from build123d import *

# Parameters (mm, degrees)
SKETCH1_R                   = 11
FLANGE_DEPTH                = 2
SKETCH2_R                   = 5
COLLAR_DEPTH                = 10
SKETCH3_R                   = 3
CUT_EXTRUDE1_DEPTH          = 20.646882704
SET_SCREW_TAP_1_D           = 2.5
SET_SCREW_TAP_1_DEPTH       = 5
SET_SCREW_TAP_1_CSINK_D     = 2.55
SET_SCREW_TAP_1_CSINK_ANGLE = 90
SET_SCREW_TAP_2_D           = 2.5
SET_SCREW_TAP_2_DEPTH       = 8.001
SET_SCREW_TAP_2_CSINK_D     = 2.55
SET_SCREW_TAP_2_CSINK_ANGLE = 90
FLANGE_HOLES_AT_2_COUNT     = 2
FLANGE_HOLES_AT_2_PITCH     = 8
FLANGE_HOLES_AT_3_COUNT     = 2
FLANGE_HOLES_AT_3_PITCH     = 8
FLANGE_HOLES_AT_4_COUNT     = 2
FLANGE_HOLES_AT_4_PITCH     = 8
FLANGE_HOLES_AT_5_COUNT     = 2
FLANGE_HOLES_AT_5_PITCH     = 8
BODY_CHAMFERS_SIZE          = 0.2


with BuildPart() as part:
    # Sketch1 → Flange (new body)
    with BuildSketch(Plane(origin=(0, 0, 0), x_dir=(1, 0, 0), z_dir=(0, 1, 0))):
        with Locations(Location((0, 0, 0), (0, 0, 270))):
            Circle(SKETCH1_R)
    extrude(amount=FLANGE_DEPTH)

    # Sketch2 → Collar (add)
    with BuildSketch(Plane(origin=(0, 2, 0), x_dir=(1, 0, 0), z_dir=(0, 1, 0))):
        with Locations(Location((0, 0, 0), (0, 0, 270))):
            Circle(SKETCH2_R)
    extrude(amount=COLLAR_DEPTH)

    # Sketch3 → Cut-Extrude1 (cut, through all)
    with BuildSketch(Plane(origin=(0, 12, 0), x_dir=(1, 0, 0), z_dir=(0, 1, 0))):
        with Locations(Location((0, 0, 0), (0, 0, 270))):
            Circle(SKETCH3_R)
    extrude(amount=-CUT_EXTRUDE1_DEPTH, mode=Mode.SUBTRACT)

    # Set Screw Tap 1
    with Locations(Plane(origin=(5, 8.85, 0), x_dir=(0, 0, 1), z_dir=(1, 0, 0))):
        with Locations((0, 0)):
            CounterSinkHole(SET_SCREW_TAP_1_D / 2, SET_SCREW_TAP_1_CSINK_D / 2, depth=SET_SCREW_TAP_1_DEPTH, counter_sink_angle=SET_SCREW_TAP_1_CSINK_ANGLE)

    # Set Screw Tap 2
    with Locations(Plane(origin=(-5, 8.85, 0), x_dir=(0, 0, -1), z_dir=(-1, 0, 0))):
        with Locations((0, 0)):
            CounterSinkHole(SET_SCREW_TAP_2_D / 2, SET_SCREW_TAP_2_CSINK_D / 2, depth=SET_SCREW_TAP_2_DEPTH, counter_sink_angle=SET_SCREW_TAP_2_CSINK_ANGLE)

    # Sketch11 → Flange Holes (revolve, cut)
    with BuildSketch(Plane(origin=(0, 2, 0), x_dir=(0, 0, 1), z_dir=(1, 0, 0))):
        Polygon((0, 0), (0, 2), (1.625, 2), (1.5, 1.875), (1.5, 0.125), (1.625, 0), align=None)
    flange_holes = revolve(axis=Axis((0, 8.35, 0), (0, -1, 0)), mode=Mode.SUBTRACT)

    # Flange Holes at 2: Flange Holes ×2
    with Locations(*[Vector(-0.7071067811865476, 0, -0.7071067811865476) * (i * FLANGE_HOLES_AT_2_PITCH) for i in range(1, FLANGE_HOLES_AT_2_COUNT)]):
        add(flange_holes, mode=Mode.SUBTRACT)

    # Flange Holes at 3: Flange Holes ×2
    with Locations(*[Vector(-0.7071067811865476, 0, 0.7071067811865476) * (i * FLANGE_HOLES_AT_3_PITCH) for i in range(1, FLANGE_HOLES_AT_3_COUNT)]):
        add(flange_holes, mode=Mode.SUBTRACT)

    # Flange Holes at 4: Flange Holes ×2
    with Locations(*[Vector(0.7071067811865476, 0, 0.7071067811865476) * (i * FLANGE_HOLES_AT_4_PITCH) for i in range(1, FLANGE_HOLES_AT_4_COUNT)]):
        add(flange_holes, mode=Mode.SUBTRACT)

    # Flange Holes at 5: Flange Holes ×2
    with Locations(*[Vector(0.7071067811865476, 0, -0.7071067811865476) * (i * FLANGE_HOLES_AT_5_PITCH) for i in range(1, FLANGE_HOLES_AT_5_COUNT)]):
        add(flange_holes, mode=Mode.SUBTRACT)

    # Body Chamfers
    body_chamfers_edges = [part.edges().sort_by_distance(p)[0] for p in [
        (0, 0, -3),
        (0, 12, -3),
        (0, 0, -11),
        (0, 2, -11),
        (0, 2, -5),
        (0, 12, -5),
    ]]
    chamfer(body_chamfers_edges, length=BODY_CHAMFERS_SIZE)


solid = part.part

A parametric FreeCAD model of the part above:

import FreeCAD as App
import Part
import Sketcher

V = App.Vector


def edges_at(feature, points):
    """Names of the edges that pass closest to the given points."""
    edges = feature.Shape.Edges
    near = lambda p: min(range(len(edges)), key=lambda i: edges[i].distToShape(Part.Vertex(*p))[0])
    return sorted({f"Edge{near(p) + 1}" for p in points})


def add_polygon(sketch, points):
    """Adds a closed chain of lines whose ends are joined by coincident constraints."""
    first, n = sketch.GeometryCount, len(points)
    for a, b in zip(points, points[1:] + points[:1]):
        sketch.addGeometry(Part.LineSegment(App.Vector(*a, 0), App.Vector(*b, 0)), False)
    for i in range(n):
        sketch.addConstraint(Sketcher.Constraint("Coincident", first + i, 2, first + (i + 1) % n, 1))

doc = App.newDocument("Part")
body = doc.addObject("PartDesign::Body", "Body")

# Sketch on XZ plane
sketch1 = body.newObject("Sketcher::SketchObject", "Sketch")
sketch1.AttachmentSupport = (doc.getObject("XZ_Plane"), [""])
sketch1.MapMode = "FlatFace"
sketch1.addGeometry(Part.Circle(V(0, 0, 0), V(0, 0, 1), 11), False)
sketch1.addConstraint([
    Sketcher.Constraint("Coincident", 0, 3, -1, 1),
    Sketcher.Constraint("Diameter", 0, 22.0),
])
pad1 = body.newObject("PartDesign::Pad", "Pad")
pad1.Profile = sketch1
pad1.Length = 2
pad1.Reversed = True

# Sketch on XZ plane
sketch2 = body.newObject("Sketcher::SketchObject", "Sketch001")
sketch2.AttachmentSupport = (doc.getObject("XZ_Plane"), [""])
sketch2.MapMode = "FlatFace"
sketch2.AttachmentOffset = App.Placement(V(0, 0, -2), App.Rotation())
sketch2.addGeometry(Part.Circle(V(0, 0, 0), V(0, 0, 1), 5), False)
sketch2.addConstraint([
    Sketcher.Constraint("Coincident", 0, 3, -1, 1),
    Sketcher.Constraint("Diameter", 0, 10.0),
])
pad2 = body.newObject("PartDesign::Pad", "Pad001")
pad2.Profile = sketch2
pad2.Length = 10
pad2.Reversed = True

# Sketch on XZ plane
sketch3 = body.newObject("Sketcher::SketchObject", "Sketch002")
sketch3.AttachmentSupport = (doc.getObject("XZ_Plane"), [""])
sketch3.MapMode = "FlatFace"
sketch3.AttachmentOffset = App.Placement(V(0, 0, -12), App.Rotation())
sketch3.addGeometry(Part.Circle(V(0, 0, 0), V(0, 0, 1), 3), False)
sketch3.addConstraint([
    Sketcher.Constraint("Coincident", 0, 3, -1, 1),
    Sketcher.Constraint("Diameter", 0, 6.0),
])
pocket1 = body.newObject("PartDesign::Pocket", "Pocket")
pocket1.Profile = sketch3
pocket1.Type = "ThroughAll"
pocket1.Reversed = True

# Sketch on YZ plane
sketch4 = body.newObject("Sketcher::SketchObject", "Sketch003")
sketch4.AttachmentSupport = (doc.getObject("YZ_Plane"), [""])
sketch4.MapMode = "FlatFace"
sketch4.AttachmentOffset = App.Placement(V(0, 0, 5), App.Rotation())
sketch4.addGeometry(Part.Circle(V(8.8, 0, 0), V(0, 0, 1), 1.2), False)
sketch4.addConstraint([
    Sketcher.Constraint("PointOnObject", 0, 3, -1),
    Sketcher.Constraint("Diameter", 0, 2.5),
    Sketcher.Constraint("DistanceX", -1, 1, 0, 3, 8.85),
])
doc.recompute()
hole = body.newObject("PartDesign::Hole", "Hole")
hole.Profile = sketch4
hole.ThreadType = "None"
hole.Diameter = 2.5
hole.DepthType = "Dimension"
hole.Depth = 5
hole.DrillPoint = "Flat"
hole.HoleCutType = "Countersink"
hole.HoleCutDiameter = 2.55
hole.HoleCutCountersinkAngle = 90

# Sketch on YZ plane
sketch5 = body.newObject("Sketcher::SketchObject", "Sketch004")
sketch5.AttachmentSupport = (doc.getObject("YZ_Plane"), [""])
sketch5.MapMode = "FlatFace"
sketch5.AttachmentOffset = App.Placement(V(0, 0, -5), App.Rotation())
sketch5.addGeometry(Part.Circle(V(8.8, 0, 0), V(0, 0, 1), 1.2), False)
sketch5.addConstraint([
    Sketcher.Constraint("PointOnObject", 0, 3, -1),
    Sketcher.Constraint("Diameter", 0, 2.5),
    Sketcher.Constraint("DistanceX", -1, 1, 0, 3, 8.85),
])
doc.recompute()
hole2 = body.newObject("PartDesign::Hole", "Hole001")
hole2.Profile = sketch5
hole2.ThreadType = "None"
hole2.Diameter = 2.5
hole2.DepthType = "Dimension"
hole2.Depth = 8.001
hole2.DrillPoint = "Flat"
hole2.HoleCutType = "Countersink"
hole2.HoleCutDiameter = 2.55
hole2.HoleCutCountersinkAngle = 90
hole2.Reversed = True

# Sketch on YZ plane
sketch6 = body.newObject("Sketcher::SketchObject", "Sketch005")
sketch6.AttachmentSupport = (doc.getObject("YZ_Plane"), [""])
sketch6.MapMode = "FlatFace"
add_polygon(sketch6, [(0, 0), (2, 0), (2, 1.62), (1.88, 1.5), (0.12, 1.5), (0, 1.62)])  # lines 0-5
sketch6.addConstraint([
    Sketcher.Constraint("Horizontal", 0),
    Sketcher.Constraint("Vertical", 1),
    Sketcher.Constraint("Horizontal", 3),
    Sketcher.Constraint("Vertical", 5),
    Sketcher.Constraint("Coincident", 5, 2, -1, 1),
    Sketcher.Constraint("Perpendicular", 2, 4),
    Sketcher.Constraint("Horizontal", 1, 2, 4, 2),
    Sketcher.Constraint("Equal", 2, 4),
    Sketcher.Constraint("DistanceX", 0, 1, 0, 2, 2.0),
    Sketcher.Constraint("DistanceX", 3, 2, 3, 1, 1.75),
    Sketcher.Constraint("DistanceY", -1, 1, 2, 2, 1.5),
])
groove = body.newObject("PartDesign::Groove", "Groove")
groove.Profile = sketch6
groove.ReferenceAxis = (sketch6, ["H_Axis"])
groove.Angle = 360
doc.recompute()

datumline = body.newObject("PartDesign::Line", "DatumLine")
datumline.Placement = App.Placement(V(0, 0, 0), App.Rotation(V(0, 0, 1), V(-0.707106781, 0, -0.707106781)))
linearpattern = body.newObject("PartDesign::LinearPattern", "LinearPattern")
linearpattern.Originals = [groove]
linearpattern.Direction = (datumline, [""])
linearpattern.Mode = "offset"
linearpattern.Offset = 8
linearpattern.Occurrences = 2
body.Tip = linearpattern
doc.recompute()

datumline2 = body.newObject("PartDesign::Line", "DatumLine001")
datumline2.Placement = App.Placement(V(0, 0, 0), App.Rotation(V(0, 0, 1), V(-0.707106781, 0, 0.707106781)))
linearpattern2 = body.newObject("PartDesign::LinearPattern", "LinearPattern001")
linearpattern2.Originals = [groove]
linearpattern2.Direction = (datumline2, [""])
linearpattern2.Mode = "offset"
linearpattern2.Offset = 8
linearpattern2.Occurrences = 2
body.Tip = linearpattern2
doc.recompute()

datumline3 = body.newObject("PartDesign::Line", "DatumLine002")
datumline3.Placement = App.Placement(V(0, 0, 0), App.Rotation(V(0, 0, 1), V(0.707106781, 0, 0.707106781)))
linearpattern3 = body.newObject("PartDesign::LinearPattern", "LinearPattern002")
linearpattern3.Originals = [groove]
linearpattern3.Direction = (datumline3, [""])
linearpattern3.Mode = "offset"
linearpattern3.Offset = 8
linearpattern3.Occurrences = 2
body.Tip = linearpattern3
doc.recompute()

datumline4 = body.newObject("PartDesign::Line", "DatumLine003")
datumline4.Placement = App.Placement(V(0, 0, 0), App.Rotation(V(0, 0, 1), V(0.707106781, 0, -0.707106781)))
linearpattern4 = body.newObject("PartDesign::LinearPattern", "LinearPattern003")
linearpattern4.Originals = [groove]
linearpattern4.Direction = (datumline4, [""])
linearpattern4.Mode = "offset"
linearpattern4.Offset = 8
linearpattern4.Occurrences = 2
body.Tip = linearpattern4
doc.recompute()

chamfer = body.newObject("PartDesign::Chamfer", "Chamfer")
chamfer.Base = (linearpattern4, edges_at(linearpattern4, [
    (0, 0, -3),
    (0, 12, -3),
    (0, 0, -11),
    (0, 2, -11),
    (0, 2, -5),
    (0, 12, -5),
]))
chamfer.Size = 0.2

doc.recompute()
